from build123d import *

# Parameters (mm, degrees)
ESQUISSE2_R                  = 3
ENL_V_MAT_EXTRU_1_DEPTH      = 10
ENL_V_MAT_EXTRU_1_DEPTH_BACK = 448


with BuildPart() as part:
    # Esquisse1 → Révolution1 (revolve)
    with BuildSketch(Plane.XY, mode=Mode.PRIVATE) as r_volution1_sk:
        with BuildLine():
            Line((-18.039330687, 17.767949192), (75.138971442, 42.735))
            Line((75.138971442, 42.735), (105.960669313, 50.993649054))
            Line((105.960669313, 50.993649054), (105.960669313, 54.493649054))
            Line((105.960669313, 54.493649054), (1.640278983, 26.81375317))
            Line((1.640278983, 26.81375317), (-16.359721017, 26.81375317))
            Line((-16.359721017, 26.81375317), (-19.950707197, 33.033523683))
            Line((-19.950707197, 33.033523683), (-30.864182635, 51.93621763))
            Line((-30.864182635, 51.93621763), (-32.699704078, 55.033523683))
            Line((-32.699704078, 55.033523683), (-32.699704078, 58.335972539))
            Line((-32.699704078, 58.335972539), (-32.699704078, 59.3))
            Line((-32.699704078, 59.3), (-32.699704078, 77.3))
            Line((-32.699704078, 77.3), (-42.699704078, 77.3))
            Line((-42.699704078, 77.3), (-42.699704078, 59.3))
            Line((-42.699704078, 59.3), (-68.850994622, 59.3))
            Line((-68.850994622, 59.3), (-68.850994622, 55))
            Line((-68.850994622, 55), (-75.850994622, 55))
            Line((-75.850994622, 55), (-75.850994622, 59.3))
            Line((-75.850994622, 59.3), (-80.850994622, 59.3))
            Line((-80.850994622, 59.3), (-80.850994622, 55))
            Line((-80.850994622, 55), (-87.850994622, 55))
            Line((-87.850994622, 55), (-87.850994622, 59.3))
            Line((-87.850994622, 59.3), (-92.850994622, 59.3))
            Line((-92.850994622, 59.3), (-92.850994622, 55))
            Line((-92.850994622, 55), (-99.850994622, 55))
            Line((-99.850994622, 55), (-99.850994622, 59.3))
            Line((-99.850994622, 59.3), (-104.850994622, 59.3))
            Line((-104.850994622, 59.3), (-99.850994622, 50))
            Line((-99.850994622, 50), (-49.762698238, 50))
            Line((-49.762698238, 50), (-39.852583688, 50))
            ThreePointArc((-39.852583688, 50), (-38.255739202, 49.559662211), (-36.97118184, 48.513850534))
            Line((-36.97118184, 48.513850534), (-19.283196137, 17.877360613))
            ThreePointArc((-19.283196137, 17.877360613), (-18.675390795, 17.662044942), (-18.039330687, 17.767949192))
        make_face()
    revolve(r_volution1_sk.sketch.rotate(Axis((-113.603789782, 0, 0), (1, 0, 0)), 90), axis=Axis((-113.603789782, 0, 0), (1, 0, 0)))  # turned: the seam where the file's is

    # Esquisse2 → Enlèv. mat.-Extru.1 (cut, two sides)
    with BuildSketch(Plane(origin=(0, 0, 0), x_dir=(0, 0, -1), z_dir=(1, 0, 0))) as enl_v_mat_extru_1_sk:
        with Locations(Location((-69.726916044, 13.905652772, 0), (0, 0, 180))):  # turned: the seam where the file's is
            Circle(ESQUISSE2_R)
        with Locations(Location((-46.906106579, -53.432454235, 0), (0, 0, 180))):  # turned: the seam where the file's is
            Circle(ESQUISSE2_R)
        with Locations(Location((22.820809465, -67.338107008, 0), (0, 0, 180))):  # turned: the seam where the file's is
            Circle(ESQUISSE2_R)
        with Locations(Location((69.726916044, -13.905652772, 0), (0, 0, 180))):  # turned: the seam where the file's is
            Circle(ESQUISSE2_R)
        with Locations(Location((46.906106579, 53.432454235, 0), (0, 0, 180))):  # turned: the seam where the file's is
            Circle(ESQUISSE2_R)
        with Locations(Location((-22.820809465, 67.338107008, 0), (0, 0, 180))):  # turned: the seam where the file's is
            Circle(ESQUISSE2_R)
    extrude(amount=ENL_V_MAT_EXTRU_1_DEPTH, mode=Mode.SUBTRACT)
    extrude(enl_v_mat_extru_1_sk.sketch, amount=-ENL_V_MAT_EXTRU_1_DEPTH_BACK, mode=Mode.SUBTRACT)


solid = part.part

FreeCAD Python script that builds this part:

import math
import FreeCAD as App
import Part
import Sketcher
Q = App.Units.Quantity

doc = App.newDocument("Part")
body = doc.addObject("PartDesign::Body", "Body")

# Sketch on XY plane
sketch1 = body.newObject("Sketcher::SketchObject", "Sketch")
sketch1.AttachmentSupport = (doc.getObject("XY_Plane"), [""])
sketch1.MapMode = "FlatFace"
sketch1.addGeometry(Part.LineSegment(App.Vector(-18.039331, 17.767949, 0), App.Vector(75.138971, 42.735, 0)), False)
sketch1.addGeometry(Part.LineSegment(App.Vector(75.138971, 42.735, 0), App.Vector(105.960669, 50.993649, 0)), False)
sketch1.addGeometry(Part.LineSegment(App.Vector(105.960669, 50.993649, 0), App.Vector(105.960669, 54.493649, 0)), False)
sketch1.addGeometry(Part.LineSegment(App.Vector(105.960669, 54.493649, 0), App.Vector(1.640279, 26.813753, 0)), False)
sketch1.addGeometry(Part.LineSegment(App.Vector(1.640279, 26.813753, 0), App.Vector(-16.359721, 26.813753, 0)), False)
sketch1.addGeometry(Part.LineSegment(App.Vector(-16.359721, 26.813753, 0), App.Vector(-19.950707, 33.033524, 0)), False)
sketch1.addGeometry(Part.LineSegment(App.Vector(-19.950707, 33.033524, 0), App.Vector(-30.864183, 51.936218, 0)), False)
sketch1.addGeometry(Part.LineSegment(App.Vector(-30.864183, 51.936218, 0), App.Vector(-32.699704, 55.033524, 0)), False)
sketch1.addGeometry(Part.LineSegment(App.Vector(-32.699704, 55.033524, 0), App.Vector(-32.699704, 77.3, 0)), False)
sketch1.addGeometry(Part.LineSegment(App.Vector(-32.699704, 77.3, 0), App.Vector(-42.699704, 77.3, 0)), False)
sketch1.addGeometry(Part.LineSegment(App.Vector(-42.699704, 77.3, 0), App.Vector(-42.699704, 59.3, 0)), False)
sketch1.addGeometry(Part.LineSegment(App.Vector(-42.699704, 59.3, 0), App.Vector(-68.850995, 59.3, 0)), False)
sketch1.addGeometry(Part.LineSegment(App.Vector(-68.850995, 59.3, 0), App.Vector(-68.850995, 55, 0)), False)
sketch1.addGeometry(Part.LineSegment(App.Vector(-68.850995, 55, 0), App.Vector(-75.850995, 55, 0)), False)
sketch1.addGeometry(Part.LineSegment(App.Vector(-75.850995, 55, 0), App.Vector(-75.850995, 59.3, 0)), False)
sketch1.addGeometry(Part.LineSegment(App.Vector(-75.850995, 59.3, 0), App.Vector(-80.850995, 59.3, 0)), False)
sketch1.addGeometry(Part.LineSegment(App.Vector(-80.850995, 59.3, 0), App.Vector(-80.850995, 55, 0)), False)
sketch1.addGeometry(Part.LineSegment(App.Vector(-80.850995, 55, 0), App.Vector(-87.850995, 55, 0)), False)
sketch1.addGeometry(Part.LineSegment(App.Vector(-87.850995, 55, 0), App.Vector(-87.850995, 59.3, 0)), False)
sketch1.addGeometry(Part.LineSegment(App.Vector(-87.850995, 59.3, 0), App.Vector(-92.850995, 59.3, 0)), False)
sketch1.addGeometry(Part.LineSegment(App.Vector(-92.850995, 59.3, 0), App.Vector(-92.850995, 55, 0)), False)
sketch1.addGeometry(Part.LineSegment(App.Vector(-92.850995, 55, 0), App.Vector(-99.850995, 55, 0)), False)
sketch1.addGeometry(Part.LineSegment(App.Vector(-99.850995, 55, 0), App.Vector(-99.850995, 59.3, 0)), False)
sketch1.addGeometry(Part.LineSegment(App.Vector(-99.850995, 59.3, 0), App.Vector(-104.850995, 59.3, 0)), False)
sketch1.addGeometry(Part.LineSegment(App.Vector(-104.850995, 59.3, 0), App.Vector(-99.850995, 50, 0)), False)
sketch1.addGeometry(Part.LineSegment(App.Vector(-99.850995, 50, 0), App.Vector(-39.852584, 50, 0)), False)
sketch1.addGeometry(Part.ArcOfCircle(Part.Circle(App.Vector(-40.101928, 45.980203, 0), App.Vector(0, 0, 1), 4.027522), math.radians(38.982522), math.radians(86.450548)), False)
sketch1.addGeometry(Part.LineSegment(App.Vector(-36.971182, 48.513851, 0), App.Vector(-19.283196, 17.877361, 0)), False)
sketch1.addGeometry(Part.ArcOfCircle(Part.Circle(App.Vector(-18.562408, 18.94651, 0), App.Vector(0, 0, 1), 1.289425), math.radians(-123.986641), math.radians(-66.06705)), False)
sketch1.addConstraint(Sketcher.Constraint("Coincident", 0, 2, 1, 1))
sketch1.addConstraint(Sketcher.Constraint("Coincident", 1, 2, 2, 1))
sketch1.addConstraint(Sketcher.Constraint("Coincident", 2, 2, 3, 1))
sketch1.addConstraint(Sketcher.Constraint("Coincident", 3, 2, 4, 1))
sketch1.addConstraint(Sketcher.Constraint("Coincident", 4, 2, 5, 1))
sketch1.addConstraint(Sketcher.Constraint("Coincident", 5, 2, 6, 1))
sketch1.addConstraint(Sketcher.Constraint("Coincident", 6, 2, 7, 1))
sketch1.addConstraint(Sketcher.Constraint("Coincident", 7, 2, 8, 1))
sketch1.addConstraint(Sketcher.Constraint("Coincident", 8, 2, 9, 1))
sketch1.addConstraint(Sketcher.Constraint("Coincident", 9, 2, 10, 1))
sketch1.addConstraint(Sketcher.Constraint("Coincident", 10, 2, 11, 1))
sketch1.addConstraint(Sketcher.Constraint("Coincident", 11, 2, 12, 1))
sketch1.addConstraint(Sketcher.Constraint("Coincident", 12, 2, 13, 1))
sketch1.addConstraint(Sketcher.Constraint("Coincident", 13, 2, 14, 1))
sketch1.addConstraint(Sketcher.Constraint("Coincident", 14, 2, 15, 1))
sketch1.addConstraint(Sketcher.Constraint("Coincident", 15, 2, 16, 1))
sketch1.addConstraint(Sketcher.Constraint("Coincident", 16, 2, 17, 1))
sketch1.addConstraint(Sketcher.Constraint("Coincident", 17, 2, 18, 1))
sketch1.addConstraint(Sketcher.Constraint("Coincident", 18, 2, 19, 1))
sketch1.addConstraint(Sketcher.Constraint("Coincident", 19, 2, 20, 1))
sketch1.addConstraint(Sketcher.Constraint("Coincident", 20, 2, 21, 1))
sketch1.addConstraint(Sketcher.Constraint("Coincident", 21, 2, 22, 1))
sketch1.addConstraint(Sketcher.Constraint("Coincident", 22, 2, 23, 1))
sketch1.addConstraint(Sketcher.Constraint("Coincident", 23, 2, 24, 1))
sketch1.addConstraint(Sketcher.Constraint("Coincident", 24, 2, 25, 1))
sketch1.addConstraint(Sketcher.Constraint("Coincident", 25, 2, 26, 2))
sketch1.addConstraint(Sketcher.Constraint("Coincident", 26, 1, 27, 1))
sketch1.addConstraint(Sketcher.Constraint("Coincident", 27, 2, 28, 1))
sketch1.addConstraint(Sketcher.Constraint("Coincident", 28, 2, 0, 1))
sketch1.addConstraint(Sketcher.Constraint("Vertical", 2))
sketch1.addConstraint(Sketcher.Constraint("Horizontal", 4))
sketch1.addConstraint(Sketcher.Constraint("Vertical", 8))
sketch1.addConstraint(Sketcher.Constraint("Horizontal", 9))
sketch1.addConstraint(Sketcher.Constraint("Vertical", 10))
sketch1.addConstraint(Sketcher.Constraint("Horizontal", 11))
sketch1.addConstraint(Sketcher.Constraint("Vertical", 12))
sketch1.addConstraint(Sketcher.Constraint("Horizontal", 13))
sketch1.addConstraint(Sketcher.Constraint("Vertical", 14))
sketch1.addConstraint(Sketcher.Constraint("Horizontal", 15))
sketch1.addConstraint(Sketcher.Constraint("Vertical", 16))
sketch1.addConstraint(Sketcher.Constraint("Horizontal", 17))
sketch1.addConstraint(Sketcher.Constraint("Vertical", 18))
sketch1.addConstraint(Sketcher.Constraint("Horizontal", 19))
sketch1.addConstraint(Sketcher.Constraint("Vertical", 20))
sketch1.addConstraint(Sketcher.Constraint("Horizontal", 21))
sketch1.addConstraint(Sketcher.Constraint("Vertical", 22))
sketch1.addConstraint(Sketcher.Constraint("Horizontal", 23))
sketch1.addConstraint(Sketcher.Constraint("Horizontal", 25))
sketch1.addConstraint(Sketcher.Constraint("Parallel", 0, 1))
sketch1.addConstraint(Sketcher.Constraint("Parallel", 5, 6))
sketch1.addConstraint(Sketcher.Constraint("Parallel", 6, 27))
sketch1.addConstraint(Sketcher.Constraint("Horizontal", 11, 2, 14, 2))
sketch1.addConstraint(Sketcher.Constraint("Horizontal", 13, 2, 16, 2))
sketch1.addConstraint(Sketcher.Constraint("Horizontal", 15, 2, 18, 2))
sketch1.addConstraint(Sketcher.Constraint("Horizontal", 17, 2, 20, 2))
sketch1.addConstraint(Sketcher.Constraint("Horizontal", 19, 2, 22, 2))
sketch1.addConstraint(Sketcher.Constraint("Vertical", 22, 2, 24, 2))
sketch1.addConstraint(Sketcher.Constraint("Equal", 13, 17))
sketch1.addConstraint(Sketcher.Constraint("Equal", 15, 19))
sketch1.addConstraint(Sketcher.Constraint("Equal", 17, 21))
sketch1.addConstraint(Sketcher.Constraint("Equal", 19, 23))
sketch1.addConstraint(Sketcher.Constraint("Equal", 4, 10))
sketch1.addConstraint(Sketcher.Constraint("DistanceX", 4, 2, 4, 1, 18.0))
sketch1.addConstraint(Sketcher.Constraint("DistanceX", 9, 2, 9, 1, 10.0))
sketch1.addConstraint(Sketcher.Constraint("DistanceX", 13, 2, 13, 1, 7.0))
sketch1.addConstraint(Sketcher.Constraint("DistanceX", 15, 2, 15, 1, 5.0))
sketch1.addConstraint(Sketcher.Constraint("Angle", 0, Q("15 deg")))
sketch1.addConstraint(Sketcher.Constraint("Angle", 5, Q("120 deg")))
sketch1.addConstraint(Sketcher.Constraint("DistanceY", 2, 1, 2, 2, 3.5))
sketch1.addConstraint(Sketcher.Constraint("DistanceY", 12, 2, 12, 1, 4.3))
sketch1.addConstraint(Sketcher.Constraint("DistanceY", -1, 1, 12, 2, 55.0))
sketch1.addConstraint(Sketcher.Constraint("DistanceY", -1, 1, 24, 2, 50.0))
sketch1.addConstraint(Sketcher.Constraint("DistanceY", 5, 2, 7, 2, 22.0))
sketch1.addConstraint(Sketcher.Constraint("DistanceY", -1, 1, 0, 2, 42.735))
sketch1.addConstraint(Sketcher.Constraint("Radius", 26, 4.027522))
sketch1.addConstraint(Sketcher.Constraint("Radius", 28, 1.289425))
sketch1.addConstraint(Sketcher.Constraint("DistanceX", 26, 1, 6, 2, 6.106999))
sketch1.addConstraint(Sketcher.Constraint("DistanceX", 11, 2, 11, 1, 26.151291))
sketch1.addConstraint(Sketcher.Constraint("DistanceX", 25, 1, 25, 2, 59.998411))
sketch1.addConstraint(Sketcher.Constraint("DistanceX", 26, 3, 0, 2, 115.240899))
sketch1.addConstraint(Sketcher.Constraint("DistanceX", 5, 2, 28, 3, 1.388299))
sketch1.addConstraint(Sketcher.Constraint("DistanceX", 25, 2, 6, 2, 8.988401))
sketch1.addConstraint(Sketcher.Constraint("Distance", 1, 31.90897))
sketch1.addConstraint(Sketcher.Constraint("Distance", 6, 21.826951))
sketch1.addConstraint(Sketcher.Constraint("Distance", 27, 35.375971))
sketch1.addConstraint(Sketcher.Constraint("DistanceY", 8, 1, 8, 2, 22.266476))
sketch1.addConstraint(Sketcher.Constraint("DistanceX", 28, 3, -1, 1, 18.562408))
sketch1.addConstraint(Sketcher.Constraint("DistanceY", -1, 1, 28, 3, 18.94651))
sketch1.addConstraint(Sketcher.Constraint("DistanceX", -1, 1, 3, 2, 1.640279))
revolution = body.newObject("PartDesign::Revolution", "Revolution")
revolution.Profile = sketch1
revolution.ReferenceAxis = (sketch1, ["H_Axis"])
revolution.Angle = 360

# Sketch on YZ plane
sketch2 = body.newObject("Sketcher::SketchObject", "Sketch001")
sketch2.AttachmentSupport = (doc.getObject("YZ_Plane"), [""])
sketch2.MapMode = "FlatFace"
sketch2.addGeometry(Part.Circle(App.Vector(13.905653, 69.726916, 0), App.Vector(0, 0, 1), 3), False)
sketch2.addGeometry(Part.Circle(App.Vector(-53.432454, 46.906107, 0), App.Vector(0, 0, 1), 3), False)
sketch2.addGeometry(Part.Circle(App.Vector(-67.338107, -22.820809, 0), App.Vector(0, 0, 1), 3), False)
sketch2.addGeometry(Part.Circle(App.Vector(-13.905653, -69.726916, 0), App.Vector(0, 0, 1), 3), False)
sketch2.addGeometry(Part.Circle(App.Vector(53.432454, -46.906107, 0), App.Vector(0, 0, 1), 3), False)
sketch2.addGeometry(Part.Circle(App.Vector(67.338107, 22.820809, 0), App.Vector(0, 0, 1), 3), False)
sketch2.addConstraint(Sketcher.Constraint("Equal", 0, 1))
sketch2.addConstraint(Sketcher.Constraint("Equal", 1, 2))
sketch2.addConstraint(Sketcher.Constraint("Equal", 2, 3))
sketch2.addConstraint(Sketcher.Constraint("Equal", 3, 4))
sketch2.addConstraint(Sketcher.Constraint("Equal", 4, 5))
sketch2.addConstraint(Sketcher.Constraint("Symmetric", 0, 3, 3, 3, -1, 1))
sketch2.addConstraint(Sketcher.Constraint("Symmetric", 1, 3, 4, 3, -1, 1))
sketch2.addConstraint(Sketcher.Constraint("Symmetric", 2, 3, 5, 3, -1, 1))
sketch2.addConstraint(Sketcher.Constraint("Diameter", 0, 6.0))
sketch2.addConstraint(Sketcher.Constraint("DistanceX", 1, 3, 3, 3, 39.526801))
sketch2.addConstraint(Sketcher.Constraint("DistanceY", 2, 3, -1, 1, 22.820809))
sketch2.addConstraint(Sketcher.Constraint("DistanceY", 1, 3, 0, 3, 22.820809))
sketch2.addConstraint(Sketcher.Constraint("DistanceX", 2, 3, 0, 3, 81.24376))
sketch2.addConstraint(Sketcher.Constraint("DistanceX", 1, 3, 4, 3, 106.864908))
sketch2.addConstraint(Sketcher.Constraint("DistanceY", -1, 1, 0, 3, 69.726916))
pocket1 = body.newObject("PartDesign::Pocket", "Pocket")
pocket1.Profile = sketch2
pocket1.Type = "ThroughAll"
pocket1.Midplane = True

doc.recompute()
